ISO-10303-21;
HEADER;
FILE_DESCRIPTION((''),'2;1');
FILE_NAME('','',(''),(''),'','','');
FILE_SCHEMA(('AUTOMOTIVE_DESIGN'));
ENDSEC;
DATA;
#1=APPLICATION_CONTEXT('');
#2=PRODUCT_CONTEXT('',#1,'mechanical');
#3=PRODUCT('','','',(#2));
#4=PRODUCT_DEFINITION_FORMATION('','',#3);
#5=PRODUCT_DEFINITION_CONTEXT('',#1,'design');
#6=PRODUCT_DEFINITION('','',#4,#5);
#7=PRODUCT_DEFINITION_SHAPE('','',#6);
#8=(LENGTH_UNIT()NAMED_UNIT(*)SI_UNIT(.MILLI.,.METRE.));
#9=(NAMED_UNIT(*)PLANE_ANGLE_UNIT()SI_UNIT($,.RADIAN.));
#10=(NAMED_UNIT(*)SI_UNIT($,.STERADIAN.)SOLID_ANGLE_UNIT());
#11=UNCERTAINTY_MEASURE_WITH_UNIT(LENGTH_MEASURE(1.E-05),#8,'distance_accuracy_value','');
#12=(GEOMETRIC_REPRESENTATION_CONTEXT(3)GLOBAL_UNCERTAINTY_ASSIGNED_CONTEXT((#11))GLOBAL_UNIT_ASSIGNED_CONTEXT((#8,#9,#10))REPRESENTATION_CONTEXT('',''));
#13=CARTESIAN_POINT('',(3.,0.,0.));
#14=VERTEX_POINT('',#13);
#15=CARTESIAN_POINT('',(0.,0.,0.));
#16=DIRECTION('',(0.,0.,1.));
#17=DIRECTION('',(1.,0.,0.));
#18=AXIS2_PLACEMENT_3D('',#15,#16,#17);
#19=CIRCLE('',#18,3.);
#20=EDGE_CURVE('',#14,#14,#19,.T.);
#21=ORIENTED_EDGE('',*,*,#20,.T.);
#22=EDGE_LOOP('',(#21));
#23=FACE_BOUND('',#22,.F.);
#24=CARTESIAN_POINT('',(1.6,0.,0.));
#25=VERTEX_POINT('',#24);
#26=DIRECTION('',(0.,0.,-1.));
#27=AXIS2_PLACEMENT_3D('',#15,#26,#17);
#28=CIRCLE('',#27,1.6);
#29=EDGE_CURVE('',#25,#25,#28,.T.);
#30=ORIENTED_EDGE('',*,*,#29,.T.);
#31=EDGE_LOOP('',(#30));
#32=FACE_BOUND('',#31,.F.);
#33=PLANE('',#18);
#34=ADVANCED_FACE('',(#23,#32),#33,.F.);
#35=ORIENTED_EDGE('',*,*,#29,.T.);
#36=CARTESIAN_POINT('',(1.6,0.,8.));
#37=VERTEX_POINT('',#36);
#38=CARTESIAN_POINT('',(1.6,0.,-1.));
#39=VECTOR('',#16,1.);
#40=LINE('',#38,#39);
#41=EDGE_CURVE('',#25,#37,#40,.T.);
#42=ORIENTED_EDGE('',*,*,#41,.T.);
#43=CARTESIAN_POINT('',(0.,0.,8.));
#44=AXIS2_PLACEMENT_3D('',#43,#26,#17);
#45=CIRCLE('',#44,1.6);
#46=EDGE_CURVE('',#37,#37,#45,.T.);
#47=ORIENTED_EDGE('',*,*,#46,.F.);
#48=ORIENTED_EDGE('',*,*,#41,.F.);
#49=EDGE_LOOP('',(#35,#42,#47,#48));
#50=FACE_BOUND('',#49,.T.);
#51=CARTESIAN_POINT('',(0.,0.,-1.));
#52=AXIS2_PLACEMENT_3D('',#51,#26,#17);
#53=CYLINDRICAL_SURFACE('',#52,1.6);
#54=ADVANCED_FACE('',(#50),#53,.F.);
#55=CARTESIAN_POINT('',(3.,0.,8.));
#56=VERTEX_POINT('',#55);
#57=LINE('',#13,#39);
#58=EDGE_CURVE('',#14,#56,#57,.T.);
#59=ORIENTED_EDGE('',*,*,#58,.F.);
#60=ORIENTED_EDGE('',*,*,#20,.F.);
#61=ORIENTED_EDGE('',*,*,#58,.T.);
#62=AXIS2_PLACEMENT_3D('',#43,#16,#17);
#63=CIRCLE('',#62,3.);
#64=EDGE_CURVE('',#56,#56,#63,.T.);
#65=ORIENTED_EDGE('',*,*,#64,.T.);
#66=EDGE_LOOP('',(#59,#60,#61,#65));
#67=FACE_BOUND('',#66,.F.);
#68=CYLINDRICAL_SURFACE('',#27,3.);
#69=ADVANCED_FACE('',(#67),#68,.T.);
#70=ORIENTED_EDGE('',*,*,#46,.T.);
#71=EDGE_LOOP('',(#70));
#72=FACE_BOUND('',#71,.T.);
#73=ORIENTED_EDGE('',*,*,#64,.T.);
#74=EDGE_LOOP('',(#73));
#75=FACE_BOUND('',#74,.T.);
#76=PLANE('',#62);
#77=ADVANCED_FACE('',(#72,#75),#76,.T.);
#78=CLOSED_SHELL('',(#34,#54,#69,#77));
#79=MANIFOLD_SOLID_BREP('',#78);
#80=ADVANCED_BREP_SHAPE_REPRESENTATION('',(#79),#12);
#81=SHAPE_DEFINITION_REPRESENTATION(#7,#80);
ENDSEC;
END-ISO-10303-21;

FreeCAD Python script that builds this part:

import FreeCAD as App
import Part
import Sketcher

V = App.Vector
Q = App.Units.Quantity

doc = App.newDocument("Part")
body = doc.addObject("PartDesign::Body", "Body")

# Sketch on XY plane
sketch1 = body.newObject("Sketcher::SketchObject", "Sketch")
sketch1.AttachmentSupport = (doc.getObject("XY_Plane"), [""])
sketch1.MapMode = "FlatFace"
sketch1.AttachmentOffset = App.Placement(V(0, 0, -1), App.Rotation())
sketch1.addGeometry(Part.Circle(V(0, 0, 0), V(0, 0, 1), 1.6), False)
sketch1.addConstraint(Sketcher.Constraint("Coincident", 0, 3, -1, 1))
sketch1.addConstraint(Sketcher.Constraint("Diameter", 0, Q("3.2 mm")))
pad1 = body.newObject("PartDesign::Pad", "Pad")
pad1.Profile = sketch1
pad1.Length = 10
body2 = doc.addObject("PartDesign::Body", "Body001")

# Sketch on XY plane
sketch2 = body2.newObject("Sketcher::SketchObject", "Sketch001")
sketch2.AttachmentSupport = (doc.getObject("XY_Plane001"), [""])
sketch2.MapMode = "FlatFace"
sketch2.addGeometry(Part.Circle(V(0, 0, 0), V(0, 0, 1), 3), False)
sketch2.addConstraint(Sketcher.Constraint("Coincident", 0, 3, -1, 1))
sketch2.addConstraint(Sketcher.Constraint("Diameter", 0, Q("6 mm")))
pad2 = body2.newObject("PartDesign::Pad", "Pad001")
pad2.Profile = sketch2
pad2.Length = 8
doc.recompute()

boolean = body2.newObject("PartDesign::Boolean", "Boolean")
boolean.Type = "Cut"
boolean.addObjects([body])

doc.recompute()
